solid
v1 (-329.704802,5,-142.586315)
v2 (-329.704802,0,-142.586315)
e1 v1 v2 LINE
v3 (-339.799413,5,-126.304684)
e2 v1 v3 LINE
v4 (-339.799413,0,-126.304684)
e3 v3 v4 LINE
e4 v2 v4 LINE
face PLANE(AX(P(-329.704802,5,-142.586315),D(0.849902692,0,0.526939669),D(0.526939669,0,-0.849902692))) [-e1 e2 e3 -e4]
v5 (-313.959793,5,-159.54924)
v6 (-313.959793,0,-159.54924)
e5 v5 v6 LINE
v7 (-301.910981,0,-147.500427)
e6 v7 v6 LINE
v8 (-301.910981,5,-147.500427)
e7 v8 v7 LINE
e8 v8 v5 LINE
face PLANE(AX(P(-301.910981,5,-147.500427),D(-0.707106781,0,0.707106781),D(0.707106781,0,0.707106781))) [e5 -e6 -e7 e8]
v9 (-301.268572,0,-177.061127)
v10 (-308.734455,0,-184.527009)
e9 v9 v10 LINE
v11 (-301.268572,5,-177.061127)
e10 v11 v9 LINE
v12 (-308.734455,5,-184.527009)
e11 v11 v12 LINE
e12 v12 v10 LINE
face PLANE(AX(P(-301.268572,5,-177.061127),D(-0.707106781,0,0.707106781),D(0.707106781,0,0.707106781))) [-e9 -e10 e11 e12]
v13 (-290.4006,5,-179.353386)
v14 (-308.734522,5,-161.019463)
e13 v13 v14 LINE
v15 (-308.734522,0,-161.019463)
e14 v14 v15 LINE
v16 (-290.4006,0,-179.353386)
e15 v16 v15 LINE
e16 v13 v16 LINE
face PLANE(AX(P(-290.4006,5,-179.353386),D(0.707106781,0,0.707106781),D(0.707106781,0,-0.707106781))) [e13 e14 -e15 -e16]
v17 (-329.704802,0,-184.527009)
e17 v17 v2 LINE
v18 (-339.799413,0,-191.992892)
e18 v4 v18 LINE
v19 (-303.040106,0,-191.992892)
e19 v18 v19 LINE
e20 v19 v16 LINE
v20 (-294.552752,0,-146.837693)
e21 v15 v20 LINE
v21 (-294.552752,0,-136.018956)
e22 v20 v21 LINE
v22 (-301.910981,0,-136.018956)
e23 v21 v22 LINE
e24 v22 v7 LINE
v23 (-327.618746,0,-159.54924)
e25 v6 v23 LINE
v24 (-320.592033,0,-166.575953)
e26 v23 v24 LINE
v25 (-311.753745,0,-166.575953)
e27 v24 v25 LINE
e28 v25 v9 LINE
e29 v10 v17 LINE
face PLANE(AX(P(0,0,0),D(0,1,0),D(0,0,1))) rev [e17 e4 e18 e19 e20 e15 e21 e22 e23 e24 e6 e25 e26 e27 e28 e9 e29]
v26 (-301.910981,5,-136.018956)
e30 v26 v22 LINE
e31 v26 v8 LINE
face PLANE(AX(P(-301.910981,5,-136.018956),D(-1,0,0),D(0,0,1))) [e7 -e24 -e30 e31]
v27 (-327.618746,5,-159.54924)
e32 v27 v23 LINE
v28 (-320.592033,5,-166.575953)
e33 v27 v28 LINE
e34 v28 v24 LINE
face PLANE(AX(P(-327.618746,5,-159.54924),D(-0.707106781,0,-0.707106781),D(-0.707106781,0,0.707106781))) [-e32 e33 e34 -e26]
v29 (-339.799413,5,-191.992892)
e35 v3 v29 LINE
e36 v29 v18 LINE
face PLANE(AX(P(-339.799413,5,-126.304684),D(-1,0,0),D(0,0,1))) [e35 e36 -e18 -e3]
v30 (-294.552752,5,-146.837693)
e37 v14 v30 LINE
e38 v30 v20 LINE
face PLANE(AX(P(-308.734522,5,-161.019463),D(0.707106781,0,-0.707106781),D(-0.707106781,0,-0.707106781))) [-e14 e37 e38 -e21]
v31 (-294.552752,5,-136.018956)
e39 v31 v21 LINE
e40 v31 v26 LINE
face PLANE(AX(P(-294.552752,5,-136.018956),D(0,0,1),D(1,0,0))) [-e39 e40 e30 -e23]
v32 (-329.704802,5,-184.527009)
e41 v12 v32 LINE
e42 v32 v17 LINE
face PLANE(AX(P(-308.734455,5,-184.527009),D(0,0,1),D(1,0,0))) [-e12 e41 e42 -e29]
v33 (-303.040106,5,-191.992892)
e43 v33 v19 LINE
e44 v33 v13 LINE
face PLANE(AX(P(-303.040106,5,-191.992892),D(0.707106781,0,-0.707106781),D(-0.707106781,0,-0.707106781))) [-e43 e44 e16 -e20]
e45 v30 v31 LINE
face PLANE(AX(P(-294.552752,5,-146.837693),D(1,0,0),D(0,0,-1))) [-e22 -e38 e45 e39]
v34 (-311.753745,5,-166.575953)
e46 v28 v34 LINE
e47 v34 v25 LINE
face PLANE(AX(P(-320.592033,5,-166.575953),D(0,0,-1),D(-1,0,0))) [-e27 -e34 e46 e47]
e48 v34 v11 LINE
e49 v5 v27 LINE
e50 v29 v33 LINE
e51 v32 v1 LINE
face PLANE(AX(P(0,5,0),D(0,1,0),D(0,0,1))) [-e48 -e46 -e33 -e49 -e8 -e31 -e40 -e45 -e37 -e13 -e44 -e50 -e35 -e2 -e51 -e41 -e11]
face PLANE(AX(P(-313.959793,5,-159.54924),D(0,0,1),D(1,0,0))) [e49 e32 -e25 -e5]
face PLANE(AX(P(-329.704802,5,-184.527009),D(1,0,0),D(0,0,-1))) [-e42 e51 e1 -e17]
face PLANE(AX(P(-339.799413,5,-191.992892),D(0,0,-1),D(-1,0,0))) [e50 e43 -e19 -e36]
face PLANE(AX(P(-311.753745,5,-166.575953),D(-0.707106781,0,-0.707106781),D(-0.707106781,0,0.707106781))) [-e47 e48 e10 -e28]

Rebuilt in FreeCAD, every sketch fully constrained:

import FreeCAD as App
import Part
import Sketcher
Q = App.Units.Quantity


def add_polygon(sketch, points):
    """Adds a closed chain of lines whose ends are joined by coincident constraints."""
    first, n = sketch.GeometryCount, len(points)
    for a, b in zip(points, points[1:] + points[:1]):
        sketch.addGeometry(Part.LineSegment(App.Vector(*a, 0), App.Vector(*b, 0)), False)
    for i in range(n):
        sketch.addConstraint(Sketcher.Constraint("Coincident", first + i, 2, first + (i + 1) % n, 1))

doc = App.newDocument("Part")
body = doc.addObject("PartDesign::Body", "Body")

# Sketch on XZ plane
sketch1 = body.newObject("Sketcher::SketchObject", "Sketch")
sketch1.AttachmentSupport = (doc.getObject("XZ_Plane"), [""])
sketch1.MapMode = "FlatFace"
add_polygon(sketch1, [(-340, -192), (-340, -126), (-330, -143), (-330, -185), (-309, -185), (-301, -177), (-312, -167), (-321, -167), (-328, -160), (-314, -160), (-302, -148), (-302, -136), (-295, -136), (-295, -147), (-309, -161), (-290, -179), (-303, -192)])  # lines 0-16
sketch1.addConstraint([
    Sketcher.Constraint("Vertical", 0),
    Sketcher.Constraint("Vertical", 2),
    Sketcher.Constraint("Horizontal", 3),
    Sketcher.Constraint("Horizontal", 6),
    Sketcher.Constraint("Horizontal", 8),
    Sketcher.Constraint("Vertical", 10),
    Sketcher.Constraint("Horizontal", 11),
    Sketcher.Constraint("Vertical", 12),
    Sketcher.Constraint("Horizontal", 16),
    Sketcher.Constraint("Perpendicular", 4, 5),
    Sketcher.Constraint("Parallel", 5, 7),
    Sketcher.Constraint("Perpendicular", 7, 9),
    Sketcher.Constraint("Parallel", 9, 13),
    Sketcher.Constraint("Perpendicular", 13, 14),
    Sketcher.Constraint("Perpendicular", 14, 15),
    Sketcher.Constraint("Angle", 4, Q("45 deg")),
    Sketcher.Constraint("DistanceX", 7, 2, 5, 2, Q("15.865001 mm")),
    Sketcher.Constraint("DistanceX", 11, 1, 11, 2, Q("7.358229 mm")),
    Sketcher.Constraint("DistanceY", 0, 1, 0, 2, Q("65.688208 mm")),
    Sketcher.Constraint("DistanceY", 10, 1, 10, 2, Q("11.481471 mm")),
    Sketcher.Constraint("DistanceX", 1, 2, -1, 1, Q("329.704802 mm")),
    Sketcher.Constraint("DistanceX", 14, 2, -1, 1, Q("290.4006 mm")),
    Sketcher.Constraint("Distance", 13, Q("20.056052 mm")),
    Sketcher.Constraint("Distance", 14, Q("25.928082 mm")),
    Sketcher.Constraint("Distance", 15, Q("17.874961 mm")),
    Sketcher.Constraint("DistanceX", 3, 1, 3, 2, Q("20.970347 mm")),
    Sketcher.Constraint("DistanceX", 6, 2, 6, 1, Q("8.838288 mm")),
    Sketcher.Constraint("DistanceX", 8, 1, 8, 2, Q("13.658953 mm")),
    Sketcher.Constraint("DistanceX", 16, 2, 16, 1, Q("36.759307 mm")),
    Sketcher.Constraint("DistanceY", 2, 2, 2, 1, Q("41.940694 mm")),
    Sketcher.Constraint("DistanceY", 12, 2, 12, 1, Q("10.818737 mm")),
    Sketcher.Constraint("DistanceY", 2, 2, -1, 1, Q("184.527009 mm")),
    Sketcher.Constraint("DistanceX", 4, 2, -1, 1, Q("301.268572 mm")),
    Sketcher.Constraint("DistanceY", 7, 2, -1, 1, Q("159.54924 mm")),
])
pad1 = body.newObject("PartDesign::Pad", "Pad")
pad1.Profile = sketch1
pad1.Length = 5
pad1.Reversed = True

doc.recompute()
